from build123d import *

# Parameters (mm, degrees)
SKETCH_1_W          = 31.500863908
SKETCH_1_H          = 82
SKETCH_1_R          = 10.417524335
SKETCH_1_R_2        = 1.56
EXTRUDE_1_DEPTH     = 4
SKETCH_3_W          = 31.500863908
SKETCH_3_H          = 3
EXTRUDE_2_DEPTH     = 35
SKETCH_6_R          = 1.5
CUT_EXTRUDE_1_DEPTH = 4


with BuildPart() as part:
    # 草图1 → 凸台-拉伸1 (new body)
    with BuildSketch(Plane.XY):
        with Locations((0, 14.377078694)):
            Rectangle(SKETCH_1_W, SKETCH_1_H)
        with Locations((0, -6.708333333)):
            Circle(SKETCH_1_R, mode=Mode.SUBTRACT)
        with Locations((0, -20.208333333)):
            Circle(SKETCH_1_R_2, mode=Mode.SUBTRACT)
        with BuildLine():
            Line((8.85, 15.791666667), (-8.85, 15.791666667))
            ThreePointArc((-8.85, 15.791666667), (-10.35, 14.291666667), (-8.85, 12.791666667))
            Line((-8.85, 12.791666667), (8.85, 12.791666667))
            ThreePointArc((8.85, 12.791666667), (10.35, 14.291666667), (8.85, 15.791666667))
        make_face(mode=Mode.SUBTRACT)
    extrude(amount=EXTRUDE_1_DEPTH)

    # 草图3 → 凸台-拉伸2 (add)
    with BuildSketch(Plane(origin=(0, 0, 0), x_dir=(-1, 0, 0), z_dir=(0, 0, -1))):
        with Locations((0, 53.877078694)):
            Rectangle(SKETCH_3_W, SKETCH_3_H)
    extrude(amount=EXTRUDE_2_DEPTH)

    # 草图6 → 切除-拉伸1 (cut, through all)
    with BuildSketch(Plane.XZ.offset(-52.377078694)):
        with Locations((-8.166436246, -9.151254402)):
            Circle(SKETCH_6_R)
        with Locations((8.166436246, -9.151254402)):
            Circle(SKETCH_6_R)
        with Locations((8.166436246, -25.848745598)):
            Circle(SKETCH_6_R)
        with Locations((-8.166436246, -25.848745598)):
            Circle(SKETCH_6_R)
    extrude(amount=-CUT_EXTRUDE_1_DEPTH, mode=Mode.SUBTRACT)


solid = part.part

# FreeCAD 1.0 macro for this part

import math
import FreeCAD as App
import Part
import Sketcher
from FreeCAD import Vector
Q = App.Units.Quantity


def add_polygon(sketch, points):
    """Adds a closed chain of lines whose ends are joined by coincident constraints."""
    first, n = sketch.GeometryCount, len(points)
    for a, b in zip(points, points[1:] + points[:1]):
        sketch.addGeometry(Part.LineSegment(App.Vector(*a, 0), App.Vector(*b, 0)), False)
    for i in range(n):
        sketch.addConstraint(Sketcher.Constraint("Coincident", first + i, 2, first + (i + 1) % n, 1))

doc = App.newDocument("Part")
body = doc.addObject("PartDesign::Body", "Body")

# Sketch on XY plane
sketch1 = body.newObject("Sketcher::SketchObject", "Sketch")
sketch1.AttachmentSupport = (doc.getObject("XY_Plane"), [""])
sketch1.MapMode = "FlatFace"
add_polygon(sketch1, [(-15.8, 55.4), (-15.8, -26.6), (15.8, -26.6), (15.8, 55.4)])  # lines 0-3
sketch1.addGeometry(Part.Circle(Vector(0, -20.2, 0), Vector(0, 0, 1), 1.6), False)  # 4
sketch1.addGeometry(Part.Circle(Vector(0, -6.7, 0), Vector(0, 0, 1), 10.4), False)  # 5
sketch1.addGeometry(Part.LineSegment(Vector(-8.8, 15.8, 0), Vector(8.8, 15.8, 0)), False)  # 6
sketch1.addGeometry(Part.ArcOfCircle(Part.Circle(Vector(8.8, 14.3, 0), Vector(0, 0, 1), 1.5), math.radians(-90), math.radians(90)), False)  # 7
sketch1.addGeometry(Part.LineSegment(Vector(8.8, 12.8, 0), Vector(-8.8, 12.8, 0)), False)  # 8
sketch1.addGeometry(Part.ArcOfCircle(Part.Circle(Vector(-8.8, 14.3, 0), Vector(0, 0, 1), 1.5), math.radians(90), math.radians(270)), False)  # 9
sketch1.addConstraint([
    Sketcher.Constraint("Tangent", 6, 2, 7, 2),
    Sketcher.Constraint("Tangent", 7, 1, 8, 1),
    Sketcher.Constraint("Tangent", 8, 2, 9, 2),
    Sketcher.Constraint("Tangent", 9, 1, 6, 1),
    Sketcher.Constraint("Vertical", 0),
    Sketcher.Constraint("Horizontal", 1),
    Sketcher.Constraint("Vertical", 2),
    Sketcher.Constraint("Horizontal", 3),
    Sketcher.Constraint("Horizontal", 6),
    Sketcher.Constraint("Horizontal", 8),
    Sketcher.Constraint("PointOnObject", 4, 3, -2),
    Sketcher.Constraint("PointOnObject", 5, 3, -2),
    Sketcher.Constraint("Radius", 7, Q("1.5 mm")),
    Sketcher.Constraint("Diameter", 4, Q("3.12 mm")),
    Sketcher.Constraint("DistanceY", 0, 2, 0, 1, Q("82 mm")),
    Sketcher.Constraint("DistanceX", 6, 1, 6, 2, Q("17.7 mm")),
    Sketcher.Constraint("DistanceY", 5, 3, 7, 3, Q("21 mm")),
    Sketcher.Constraint("DistanceY", 4, 3, 6, 2, Q("36 mm")),
    Sketcher.Constraint("Diameter", 5, Q("20.835049 mm")),
    Sketcher.Constraint("DistanceX", -1, 1, 7, 3, Q("8.85 mm")),
    Sketcher.Constraint("DistanceX", 1, 1, 1, 2, Q("31.500864 mm")),
    Sketcher.Constraint("DistanceX", 0, 2, -1, 1, Q("15.750432 mm")),
    Sketcher.Constraint("DistanceY", 0, 2, -1, 1, Q("26.622921 mm")),
    Sketcher.Constraint("DistanceY", 4, 3, -1, 1, Q("20.208333 mm")),
])
pad1 = body.newObject("PartDesign::Pad", "Pad")
pad1.Profile = sketch1
pad1.Length = 4

# Sketch on XY plane
sketch2 = body.newObject("Sketcher::SketchObject", "Sketch001")
sketch2.AttachmentSupport = (doc.getObject("XY_Plane"), [""])
sketch2.MapMode = "FlatFace"
add_polygon(sketch2, [(15.8, 55.4), (15.8, 52.4), (-15.8, 52.4), (-15.8, 55.4)])  # lines 0-3
sketch2.addConstraint([
    Sketcher.Constraint("Vertical", 0),
    Sketcher.Constraint("Horizontal", 1),
    Sketcher.Constraint("Vertical", 2),
    Sketcher.Constraint("Horizontal", 3),
    Sketcher.Constraint("DistanceY", 0, 2, 0, 1, Q("3 mm")),
    Sketcher.Constraint("DistanceX", 1, 2, 1, 1, Q("31.500864 mm")),
    Sketcher.Constraint("DistanceX", -1, 1, 0, 2, Q("15.750432 mm")),
    Sketcher.Constraint("DistanceY", -1, 1, 0, 2, Q("52.377079 mm")),
])
pad2 = body.newObject("PartDesign::Pad", "Pad001")
pad2.Profile = sketch2
pad2.Length = 35
pad2.Reversed = True

# Sketch on XZ plane
sketch3 = body.newObject("Sketcher::SketchObject", "Sketch002")
sketch3.AttachmentSupport = (doc.getObject("XZ_Plane"), [""])
sketch3.MapMode = "FlatFace"
sketch3.AttachmentOffset = App.Placement(Vector(0, 0, -52.377079), App.Rotation())
sketch3.addGeometry([
    Part.Circle(Vector(-8.2, -9.2, 0), Vector(0, 0, 1), 1.5),
    Part.Circle(Vector(8.2, -9.2, 0), Vector(0, 0, 1), 1.5),
    Part.Circle(Vector(8.2, -25.8, 0), Vector(0, 0, 1), 1.5),
    Part.Circle(Vector(-8.2, -25.8, 0), Vector(0, 0, 1), 1.5),
], False)
sketch3.addConstraint([
    Sketcher.Constraint("Equal", 0, 1),
    Sketcher.Constraint("Equal", 1, 2),
    Sketcher.Constraint("Equal", 2, 3),
    Sketcher.Constraint("Symmetric", 0, 3, 1, 3, -2),
    Sketcher.Constraint("Symmetric", 2, 3, 3, 3, -2),
    Sketcher.Constraint("Vertical", 1, 3, 2, 3),
    Sketcher.Constraint("Diameter", 0, Q("3 mm")),
    Sketcher.Constraint("DistanceY", 2, 3, 1, 3, Q("16.697491 mm")),
    Sketcher.Constraint("DistanceX", 0, 3, -1, 1, Q("8.166436 mm")),
    Sketcher.Constraint("DistanceY", 0, 3, -1, 1, Q("9.151254 mm")),
])
pocket1 = body.newObject("PartDesign::Pocket", "Pocket")
pocket1.Profile = sketch3
pocket1.Type = "ThroughAll"

doc.recompute()
